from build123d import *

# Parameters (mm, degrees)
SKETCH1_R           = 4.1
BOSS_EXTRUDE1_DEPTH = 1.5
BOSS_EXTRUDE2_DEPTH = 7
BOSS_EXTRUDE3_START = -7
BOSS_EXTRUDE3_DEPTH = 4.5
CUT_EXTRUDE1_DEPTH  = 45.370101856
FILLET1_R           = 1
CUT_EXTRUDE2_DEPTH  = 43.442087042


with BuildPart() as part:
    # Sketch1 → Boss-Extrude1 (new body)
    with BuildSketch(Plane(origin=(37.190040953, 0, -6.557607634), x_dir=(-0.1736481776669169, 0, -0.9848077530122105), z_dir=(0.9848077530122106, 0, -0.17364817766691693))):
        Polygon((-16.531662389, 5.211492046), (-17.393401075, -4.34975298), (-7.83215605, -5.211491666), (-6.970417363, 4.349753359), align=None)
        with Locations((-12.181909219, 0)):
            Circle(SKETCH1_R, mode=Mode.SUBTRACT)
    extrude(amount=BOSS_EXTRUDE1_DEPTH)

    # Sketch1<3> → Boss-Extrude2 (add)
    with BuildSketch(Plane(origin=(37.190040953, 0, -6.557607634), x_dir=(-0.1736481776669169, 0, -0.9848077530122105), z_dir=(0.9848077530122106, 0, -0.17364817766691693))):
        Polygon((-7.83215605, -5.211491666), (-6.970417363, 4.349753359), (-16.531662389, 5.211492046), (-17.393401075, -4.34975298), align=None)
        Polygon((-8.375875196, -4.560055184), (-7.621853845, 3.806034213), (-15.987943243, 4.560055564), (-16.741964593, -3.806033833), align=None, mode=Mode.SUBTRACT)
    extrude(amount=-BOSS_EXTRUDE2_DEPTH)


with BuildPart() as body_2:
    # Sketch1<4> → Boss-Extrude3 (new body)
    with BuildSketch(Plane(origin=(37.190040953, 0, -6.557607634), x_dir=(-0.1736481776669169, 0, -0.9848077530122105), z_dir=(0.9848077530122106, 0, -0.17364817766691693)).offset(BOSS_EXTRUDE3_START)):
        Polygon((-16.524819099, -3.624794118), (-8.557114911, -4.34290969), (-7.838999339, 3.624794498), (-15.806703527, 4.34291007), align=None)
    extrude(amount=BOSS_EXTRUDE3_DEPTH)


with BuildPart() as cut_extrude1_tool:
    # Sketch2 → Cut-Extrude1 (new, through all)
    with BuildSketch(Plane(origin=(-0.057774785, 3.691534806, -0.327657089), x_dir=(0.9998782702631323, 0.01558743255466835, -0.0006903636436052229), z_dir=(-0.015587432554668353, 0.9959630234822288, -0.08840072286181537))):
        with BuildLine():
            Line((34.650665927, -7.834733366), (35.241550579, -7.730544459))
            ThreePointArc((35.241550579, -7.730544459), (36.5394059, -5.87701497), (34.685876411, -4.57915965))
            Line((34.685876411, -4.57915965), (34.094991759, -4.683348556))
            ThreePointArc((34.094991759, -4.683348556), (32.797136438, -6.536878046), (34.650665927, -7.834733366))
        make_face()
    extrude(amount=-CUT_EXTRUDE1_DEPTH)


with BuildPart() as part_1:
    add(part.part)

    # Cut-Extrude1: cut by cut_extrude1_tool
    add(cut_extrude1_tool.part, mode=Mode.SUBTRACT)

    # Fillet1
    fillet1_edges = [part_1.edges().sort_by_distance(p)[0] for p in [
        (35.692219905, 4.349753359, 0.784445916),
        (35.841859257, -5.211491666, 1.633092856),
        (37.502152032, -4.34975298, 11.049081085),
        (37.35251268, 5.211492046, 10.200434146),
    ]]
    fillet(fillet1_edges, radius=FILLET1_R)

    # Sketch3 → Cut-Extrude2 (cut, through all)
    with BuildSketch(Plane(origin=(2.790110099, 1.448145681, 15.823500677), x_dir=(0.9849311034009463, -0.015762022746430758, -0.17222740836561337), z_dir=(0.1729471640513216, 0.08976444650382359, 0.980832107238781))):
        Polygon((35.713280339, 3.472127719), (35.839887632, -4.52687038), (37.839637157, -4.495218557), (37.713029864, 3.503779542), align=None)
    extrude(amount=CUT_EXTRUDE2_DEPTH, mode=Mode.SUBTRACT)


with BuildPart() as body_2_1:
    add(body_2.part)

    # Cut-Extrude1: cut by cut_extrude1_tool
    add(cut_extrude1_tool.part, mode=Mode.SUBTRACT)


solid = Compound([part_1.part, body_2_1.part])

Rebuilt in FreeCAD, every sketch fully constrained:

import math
import FreeCAD as App
import Part
import Sketcher

V = App.Vector
Q = App.Units.Quantity


def edges_at(feature, points):
    """Names of the edges that pass closest to the given points."""
    edges = feature.Shape.Edges
    near = lambda p: min(range(len(edges)), key=lambda i: edges[i].distToShape(Part.Vertex(*p))[0])
    return sorted({f"Edge{near(p) + 1}" for p in points})


def add_polygon(sketch, points):
    """Adds a closed chain of lines whose ends are joined by coincident constraints."""
    first, n = sketch.GeometryCount, len(points)
    for a, b in zip(points, points[1:] + points[:1]):
        sketch.addGeometry(Part.LineSegment(App.Vector(*a, 0), App.Vector(*b, 0)), False)
    for i in range(n):
        sketch.addConstraint(Sketcher.Constraint("Coincident", first + i, 2, first + (i + 1) % n, 1))

doc = App.newDocument("Part")
body = doc.addObject("PartDesign::Body", "Body")

sketch1 = body.newObject("Sketcher::SketchObject", "Sketch")
sketch1.Placement = App.Placement(V(37.190041, 0, -6.557608), App.Rotation(V(-0.173648178, 0, -0.984807753), V(0, 1, 0), V(0.984807753, 0, -0.173648178), "ZXY"))
add_polygon(sketch1, [(-16.5, 5.2), (-17.4, -4.3), (-7.8, -5.2), (-7, 4.3)])
sketch1.addGeometry(Part.Circle(V(-12.2, 0, 0), V(0, 0, 1), 4.1), False)
sketch1.addConstraint(Sketcher.Constraint("PointOnObject", 4, 3, -1))
sketch1.addConstraint(Sketcher.Constraint("Perpendicular", 0, 1))
sketch1.addConstraint(Sketcher.Constraint("Perpendicular", 1, 2))
sketch1.addConstraint(Sketcher.Constraint("Perpendicular", 2, 3))
sketch1.addConstraint(Sketcher.Constraint("Equal", 0, 1))
sketch1.addConstraint(Sketcher.Constraint("Diameter", 4, 8.2))
sketch1.addConstraint(Sketcher.Constraint("Distance", 0, 9.6))
sketch1.addConstraint(Sketcher.Constraint("DistanceX", 0, 2, -1, 1, 17.393401))
sketch1.addConstraint(Sketcher.Constraint("DistanceX", 4, 3, -1, 1, 12.181909))
sketch1.addConstraint(Sketcher.Constraint("DistanceY", 1, 2, -1, 1, 5.211492))
sketch1.addConstraint(Sketcher.Constraint("DistanceY", 1, 2, 0, 2, 0.861739))
pad1 = body.newObject("PartDesign::Pad", "Pad")
pad1.Profile = sketch1
pad1.Length = 1.5

sketch2 = body.newObject("Sketcher::SketchObject", "Sketch001")
sketch2.Placement = App.Placement(V(37.190041, 0, -6.557608), App.Rotation(V(-0.173648178, 0, -0.984807753), V(0, 1, 0), V(0.984807753, 0, -0.173648178), "ZXY"))
add_polygon(sketch2, [(-8, -5), (-7, 4), (-17, 5), (-17, -4)])
add_polygon(sketch2, [(-8, 4), (-8, -5), (-17, -4), (-16, 5)])
sketch2.addConstraint(Sketcher.Constraint("Perpendicular", 0, 1))
sketch2.addConstraint(Sketcher.Constraint("Perpendicular", 1, 2))
sketch2.addConstraint(Sketcher.Constraint("Perpendicular", 2, 3))
sketch2.addConstraint(Sketcher.Constraint("Perpendicular", 3, 4))
sketch2.addConstraint(Sketcher.Constraint("Perpendicular", 4, 5))
sketch2.addConstraint(Sketcher.Constraint("Perpendicular", 5, 6))
sketch2.addConstraint(Sketcher.Constraint("Perpendicular", 6, 7))
sketch2.addConstraint(Sketcher.Constraint("Equal", 0, 1))
sketch2.addConstraint(Sketcher.Constraint("Equal", 4, 5))
sketch2.addConstraint(Sketcher.Constraint("Distance", 0, 9.6))
sketch2.addConstraint(Sketcher.Constraint("Distance", 4, 8.4))
sketch2.addConstraint(Sketcher.Constraint("DistanceX", 2, 2, -1, 1, 17.393401))
sketch2.addConstraint(Sketcher.Constraint("DistanceY", 3, 2, -1, 1, 5.211492))
sketch2.addConstraint(Sketcher.Constraint("DistanceY", 0, 2, 1, 2, 0.861739))
sketch2.addConstraint(Sketcher.Constraint("DistanceX", 4, 2, 3, 2, 0.543719))
sketch2.addConstraint(Sketcher.Constraint("DistanceY", 4, 2, 0, 2, 8.909809))
pad2 = body.newObject("PartDesign::Pad", "Pad001")
pad2.Profile = sketch2
pad2.Length = 7
pad2.Reversed = True
body2 = doc.addObject("PartDesign::Body", "Body001")

sketch3 = body2.newObject("Sketcher::SketchObject", "Sketch002")
sketch3.Placement = App.Placement(V(30.296387, 0, -5.34207), App.Rotation(V(-0.173648178, 0, -0.984807753), V(0, 1, 0), V(0.984807753, 0, -0.173648178), "ZXY"))
add_polygon(sketch3, [(-17, -4), (-9, -4), (-8, 4), (-16, 4)])
sketch3.addConstraint(Sketcher.Constraint("Perpendicular", 0, 1))
sketch3.addConstraint(Sketcher.Constraint("Perpendicular", 1, 2))
sketch3.addConstraint(Sketcher.Constraint("Perpendicular", 2, 3))
sketch3.addConstraint(Sketcher.Constraint("Equal", 0, 1))
sketch3.addConstraint(Sketcher.Constraint("Distance", 0, 8.0))
sketch3.addConstraint(Sketcher.Constraint("DistanceX", 1, 2, -1, 1, 7.838999))
sketch3.addConstraint(Sketcher.Constraint("DistanceY", 0, 2, -1, 1, 4.34291))
sketch3.addConstraint(Sketcher.Constraint("DistanceY", -1, 1, 2, 2, 4.34291))
pad3 = body2.newObject("PartDesign::Pad", "Pad002")
pad3.Profile = sketch3
pad3.Length = 4.5
body3 = doc.addObject("PartDesign::Body", "Body002")

sketch4 = body3.newObject("Sketcher::SketchObject", "Sketch003")
sketch4.Placement = App.Placement(V(-0.057775, 3.691535, -0.327657), App.Rotation(V(0.99987827, 0.015587433, -0.000690364), V(0.000690363, -0.088400723, -0.996084752), V(-0.015587433, 0.995963023, -0.088400723), "ZXY"))
sketch4.addGeometry(Part.LineSegment(V(34.7, -7.8, 0), V(35.2, -7.7, 0)), False)
sketch4.addGeometry(Part.ArcOfCircle(Part.Circle(V(35, -6.2, 0), V(0, 0, 1), 1.6), math.radians(-80), math.radians(100)), False)
sketch4.addGeometry(Part.LineSegment(V(34.7, -4.6, 0), V(34.1, -4.7, 0)), False)
sketch4.addGeometry(Part.ArcOfCircle(Part.Circle(V(34.4, -6.3, 0), V(0, 0, 1), 1.6), math.radians(100), math.radians(280)), False)
sketch4.addConstraint(Sketcher.Constraint("Tangent", 0, 2, 1, 1))
sketch4.addConstraint(Sketcher.Constraint("Tangent", 1, 2, 2, 1))
sketch4.addConstraint(Sketcher.Constraint("Tangent", 2, 2, 3, 1))
sketch4.addConstraint(Sketcher.Constraint("Tangent", 3, 2, 0, 1))
sketch4.addConstraint(Sketcher.Constraint("Equal", 1, 3))
sketch4.addConstraint(Sketcher.Constraint("Radius", 1, 1.6))
sketch4.addConstraint(Sketcher.Constraint("Angle", 0, Q("10 deg")))
sketch4.addConstraint(Sketcher.Constraint("Distance", 0, 0.6))
sketch4.addConstraint(Sketcher.Constraint("DistanceX", -1, 1, 3, 3, 34.372829))
sketch4.addConstraint(Sketcher.Constraint("DistanceY", 3, 3, -1, 1, 6.259041))
pad4 = body3.newObject("PartDesign::Pad", "Pad003")
pad4.Profile = sketch4
pad4.Length = 45.370102
pad4.Reversed = True
doc.recompute()

body4 = doc.addObject("PartDesign::Body", "Body003")
body4.BaseFeature = body3
boolean = body.newObject("PartDesign::Boolean", "Boolean")
boolean.Type = "Cut"
boolean.addObjects([body4])
doc.recompute()

fillet = body.newObject("PartDesign::Fillet", "Fillet")
fillet.Base = (boolean, edges_at(boolean, [
    (35.692, 4.35, 0.784),
    (35.842, -5.211, 1.633),
    (37.502, -4.35, 11.049),
    (37.353, 5.211, 10.2),
]))
fillet.Radius = 1

sketch5 = body.newObject("Sketcher::SketchObject", "Sketch004")
sketch5.Placement = App.Placement(V(2.79011, 1.448146, 15.823501), App.Rotation(V(0.984931103, -0.015762023, -0.172227408), V(0, 0.995838291, -0.091137793), V(0.172947164, 0.089764447, 0.980832107), "ZXY"))
add_polygon(sketch5, [(35.7, 3.5), (35.8, -4.5), (37.8, -4.5), (37.7, 3.5)])
sketch5.addConstraint(Sketcher.Constraint("Perpendicular", 0, 1))
sketch5.addConstraint(Sketcher.Constraint("Perpendicular", 1, 2))
sketch5.addConstraint(Sketcher.Constraint("Perpendicular", 2, 3))
sketch5.addConstraint(Sketcher.Constraint("Distance", 0, 8.0))
sketch5.addConstraint(Sketcher.Constraint("Distance", 1, 2.0))
sketch5.addConstraint(Sketcher.Constraint("DistanceY", 1, 2, 2, 2, 7.998998))
sketch5.addConstraint(Sketcher.Constraint("DistanceY", 0, 2, -1, 1, 4.52687))
sketch5.addConstraint(Sketcher.Constraint("DistanceX", -1, 1, 2, 2, 37.71303))
pocket1 = body.newObject("PartDesign::Pocket", "Pocket")
pocket1.Profile = sketch5
pocket1.Type = "ThroughAll"
pocket1.Reversed = True
doc.recompute()

boolean2 = body2.newObject("PartDesign::Boolean", "Boolean001")
boolean2.Type = "Cut"
boolean2.addObjects([body3])

doc.recompute()
